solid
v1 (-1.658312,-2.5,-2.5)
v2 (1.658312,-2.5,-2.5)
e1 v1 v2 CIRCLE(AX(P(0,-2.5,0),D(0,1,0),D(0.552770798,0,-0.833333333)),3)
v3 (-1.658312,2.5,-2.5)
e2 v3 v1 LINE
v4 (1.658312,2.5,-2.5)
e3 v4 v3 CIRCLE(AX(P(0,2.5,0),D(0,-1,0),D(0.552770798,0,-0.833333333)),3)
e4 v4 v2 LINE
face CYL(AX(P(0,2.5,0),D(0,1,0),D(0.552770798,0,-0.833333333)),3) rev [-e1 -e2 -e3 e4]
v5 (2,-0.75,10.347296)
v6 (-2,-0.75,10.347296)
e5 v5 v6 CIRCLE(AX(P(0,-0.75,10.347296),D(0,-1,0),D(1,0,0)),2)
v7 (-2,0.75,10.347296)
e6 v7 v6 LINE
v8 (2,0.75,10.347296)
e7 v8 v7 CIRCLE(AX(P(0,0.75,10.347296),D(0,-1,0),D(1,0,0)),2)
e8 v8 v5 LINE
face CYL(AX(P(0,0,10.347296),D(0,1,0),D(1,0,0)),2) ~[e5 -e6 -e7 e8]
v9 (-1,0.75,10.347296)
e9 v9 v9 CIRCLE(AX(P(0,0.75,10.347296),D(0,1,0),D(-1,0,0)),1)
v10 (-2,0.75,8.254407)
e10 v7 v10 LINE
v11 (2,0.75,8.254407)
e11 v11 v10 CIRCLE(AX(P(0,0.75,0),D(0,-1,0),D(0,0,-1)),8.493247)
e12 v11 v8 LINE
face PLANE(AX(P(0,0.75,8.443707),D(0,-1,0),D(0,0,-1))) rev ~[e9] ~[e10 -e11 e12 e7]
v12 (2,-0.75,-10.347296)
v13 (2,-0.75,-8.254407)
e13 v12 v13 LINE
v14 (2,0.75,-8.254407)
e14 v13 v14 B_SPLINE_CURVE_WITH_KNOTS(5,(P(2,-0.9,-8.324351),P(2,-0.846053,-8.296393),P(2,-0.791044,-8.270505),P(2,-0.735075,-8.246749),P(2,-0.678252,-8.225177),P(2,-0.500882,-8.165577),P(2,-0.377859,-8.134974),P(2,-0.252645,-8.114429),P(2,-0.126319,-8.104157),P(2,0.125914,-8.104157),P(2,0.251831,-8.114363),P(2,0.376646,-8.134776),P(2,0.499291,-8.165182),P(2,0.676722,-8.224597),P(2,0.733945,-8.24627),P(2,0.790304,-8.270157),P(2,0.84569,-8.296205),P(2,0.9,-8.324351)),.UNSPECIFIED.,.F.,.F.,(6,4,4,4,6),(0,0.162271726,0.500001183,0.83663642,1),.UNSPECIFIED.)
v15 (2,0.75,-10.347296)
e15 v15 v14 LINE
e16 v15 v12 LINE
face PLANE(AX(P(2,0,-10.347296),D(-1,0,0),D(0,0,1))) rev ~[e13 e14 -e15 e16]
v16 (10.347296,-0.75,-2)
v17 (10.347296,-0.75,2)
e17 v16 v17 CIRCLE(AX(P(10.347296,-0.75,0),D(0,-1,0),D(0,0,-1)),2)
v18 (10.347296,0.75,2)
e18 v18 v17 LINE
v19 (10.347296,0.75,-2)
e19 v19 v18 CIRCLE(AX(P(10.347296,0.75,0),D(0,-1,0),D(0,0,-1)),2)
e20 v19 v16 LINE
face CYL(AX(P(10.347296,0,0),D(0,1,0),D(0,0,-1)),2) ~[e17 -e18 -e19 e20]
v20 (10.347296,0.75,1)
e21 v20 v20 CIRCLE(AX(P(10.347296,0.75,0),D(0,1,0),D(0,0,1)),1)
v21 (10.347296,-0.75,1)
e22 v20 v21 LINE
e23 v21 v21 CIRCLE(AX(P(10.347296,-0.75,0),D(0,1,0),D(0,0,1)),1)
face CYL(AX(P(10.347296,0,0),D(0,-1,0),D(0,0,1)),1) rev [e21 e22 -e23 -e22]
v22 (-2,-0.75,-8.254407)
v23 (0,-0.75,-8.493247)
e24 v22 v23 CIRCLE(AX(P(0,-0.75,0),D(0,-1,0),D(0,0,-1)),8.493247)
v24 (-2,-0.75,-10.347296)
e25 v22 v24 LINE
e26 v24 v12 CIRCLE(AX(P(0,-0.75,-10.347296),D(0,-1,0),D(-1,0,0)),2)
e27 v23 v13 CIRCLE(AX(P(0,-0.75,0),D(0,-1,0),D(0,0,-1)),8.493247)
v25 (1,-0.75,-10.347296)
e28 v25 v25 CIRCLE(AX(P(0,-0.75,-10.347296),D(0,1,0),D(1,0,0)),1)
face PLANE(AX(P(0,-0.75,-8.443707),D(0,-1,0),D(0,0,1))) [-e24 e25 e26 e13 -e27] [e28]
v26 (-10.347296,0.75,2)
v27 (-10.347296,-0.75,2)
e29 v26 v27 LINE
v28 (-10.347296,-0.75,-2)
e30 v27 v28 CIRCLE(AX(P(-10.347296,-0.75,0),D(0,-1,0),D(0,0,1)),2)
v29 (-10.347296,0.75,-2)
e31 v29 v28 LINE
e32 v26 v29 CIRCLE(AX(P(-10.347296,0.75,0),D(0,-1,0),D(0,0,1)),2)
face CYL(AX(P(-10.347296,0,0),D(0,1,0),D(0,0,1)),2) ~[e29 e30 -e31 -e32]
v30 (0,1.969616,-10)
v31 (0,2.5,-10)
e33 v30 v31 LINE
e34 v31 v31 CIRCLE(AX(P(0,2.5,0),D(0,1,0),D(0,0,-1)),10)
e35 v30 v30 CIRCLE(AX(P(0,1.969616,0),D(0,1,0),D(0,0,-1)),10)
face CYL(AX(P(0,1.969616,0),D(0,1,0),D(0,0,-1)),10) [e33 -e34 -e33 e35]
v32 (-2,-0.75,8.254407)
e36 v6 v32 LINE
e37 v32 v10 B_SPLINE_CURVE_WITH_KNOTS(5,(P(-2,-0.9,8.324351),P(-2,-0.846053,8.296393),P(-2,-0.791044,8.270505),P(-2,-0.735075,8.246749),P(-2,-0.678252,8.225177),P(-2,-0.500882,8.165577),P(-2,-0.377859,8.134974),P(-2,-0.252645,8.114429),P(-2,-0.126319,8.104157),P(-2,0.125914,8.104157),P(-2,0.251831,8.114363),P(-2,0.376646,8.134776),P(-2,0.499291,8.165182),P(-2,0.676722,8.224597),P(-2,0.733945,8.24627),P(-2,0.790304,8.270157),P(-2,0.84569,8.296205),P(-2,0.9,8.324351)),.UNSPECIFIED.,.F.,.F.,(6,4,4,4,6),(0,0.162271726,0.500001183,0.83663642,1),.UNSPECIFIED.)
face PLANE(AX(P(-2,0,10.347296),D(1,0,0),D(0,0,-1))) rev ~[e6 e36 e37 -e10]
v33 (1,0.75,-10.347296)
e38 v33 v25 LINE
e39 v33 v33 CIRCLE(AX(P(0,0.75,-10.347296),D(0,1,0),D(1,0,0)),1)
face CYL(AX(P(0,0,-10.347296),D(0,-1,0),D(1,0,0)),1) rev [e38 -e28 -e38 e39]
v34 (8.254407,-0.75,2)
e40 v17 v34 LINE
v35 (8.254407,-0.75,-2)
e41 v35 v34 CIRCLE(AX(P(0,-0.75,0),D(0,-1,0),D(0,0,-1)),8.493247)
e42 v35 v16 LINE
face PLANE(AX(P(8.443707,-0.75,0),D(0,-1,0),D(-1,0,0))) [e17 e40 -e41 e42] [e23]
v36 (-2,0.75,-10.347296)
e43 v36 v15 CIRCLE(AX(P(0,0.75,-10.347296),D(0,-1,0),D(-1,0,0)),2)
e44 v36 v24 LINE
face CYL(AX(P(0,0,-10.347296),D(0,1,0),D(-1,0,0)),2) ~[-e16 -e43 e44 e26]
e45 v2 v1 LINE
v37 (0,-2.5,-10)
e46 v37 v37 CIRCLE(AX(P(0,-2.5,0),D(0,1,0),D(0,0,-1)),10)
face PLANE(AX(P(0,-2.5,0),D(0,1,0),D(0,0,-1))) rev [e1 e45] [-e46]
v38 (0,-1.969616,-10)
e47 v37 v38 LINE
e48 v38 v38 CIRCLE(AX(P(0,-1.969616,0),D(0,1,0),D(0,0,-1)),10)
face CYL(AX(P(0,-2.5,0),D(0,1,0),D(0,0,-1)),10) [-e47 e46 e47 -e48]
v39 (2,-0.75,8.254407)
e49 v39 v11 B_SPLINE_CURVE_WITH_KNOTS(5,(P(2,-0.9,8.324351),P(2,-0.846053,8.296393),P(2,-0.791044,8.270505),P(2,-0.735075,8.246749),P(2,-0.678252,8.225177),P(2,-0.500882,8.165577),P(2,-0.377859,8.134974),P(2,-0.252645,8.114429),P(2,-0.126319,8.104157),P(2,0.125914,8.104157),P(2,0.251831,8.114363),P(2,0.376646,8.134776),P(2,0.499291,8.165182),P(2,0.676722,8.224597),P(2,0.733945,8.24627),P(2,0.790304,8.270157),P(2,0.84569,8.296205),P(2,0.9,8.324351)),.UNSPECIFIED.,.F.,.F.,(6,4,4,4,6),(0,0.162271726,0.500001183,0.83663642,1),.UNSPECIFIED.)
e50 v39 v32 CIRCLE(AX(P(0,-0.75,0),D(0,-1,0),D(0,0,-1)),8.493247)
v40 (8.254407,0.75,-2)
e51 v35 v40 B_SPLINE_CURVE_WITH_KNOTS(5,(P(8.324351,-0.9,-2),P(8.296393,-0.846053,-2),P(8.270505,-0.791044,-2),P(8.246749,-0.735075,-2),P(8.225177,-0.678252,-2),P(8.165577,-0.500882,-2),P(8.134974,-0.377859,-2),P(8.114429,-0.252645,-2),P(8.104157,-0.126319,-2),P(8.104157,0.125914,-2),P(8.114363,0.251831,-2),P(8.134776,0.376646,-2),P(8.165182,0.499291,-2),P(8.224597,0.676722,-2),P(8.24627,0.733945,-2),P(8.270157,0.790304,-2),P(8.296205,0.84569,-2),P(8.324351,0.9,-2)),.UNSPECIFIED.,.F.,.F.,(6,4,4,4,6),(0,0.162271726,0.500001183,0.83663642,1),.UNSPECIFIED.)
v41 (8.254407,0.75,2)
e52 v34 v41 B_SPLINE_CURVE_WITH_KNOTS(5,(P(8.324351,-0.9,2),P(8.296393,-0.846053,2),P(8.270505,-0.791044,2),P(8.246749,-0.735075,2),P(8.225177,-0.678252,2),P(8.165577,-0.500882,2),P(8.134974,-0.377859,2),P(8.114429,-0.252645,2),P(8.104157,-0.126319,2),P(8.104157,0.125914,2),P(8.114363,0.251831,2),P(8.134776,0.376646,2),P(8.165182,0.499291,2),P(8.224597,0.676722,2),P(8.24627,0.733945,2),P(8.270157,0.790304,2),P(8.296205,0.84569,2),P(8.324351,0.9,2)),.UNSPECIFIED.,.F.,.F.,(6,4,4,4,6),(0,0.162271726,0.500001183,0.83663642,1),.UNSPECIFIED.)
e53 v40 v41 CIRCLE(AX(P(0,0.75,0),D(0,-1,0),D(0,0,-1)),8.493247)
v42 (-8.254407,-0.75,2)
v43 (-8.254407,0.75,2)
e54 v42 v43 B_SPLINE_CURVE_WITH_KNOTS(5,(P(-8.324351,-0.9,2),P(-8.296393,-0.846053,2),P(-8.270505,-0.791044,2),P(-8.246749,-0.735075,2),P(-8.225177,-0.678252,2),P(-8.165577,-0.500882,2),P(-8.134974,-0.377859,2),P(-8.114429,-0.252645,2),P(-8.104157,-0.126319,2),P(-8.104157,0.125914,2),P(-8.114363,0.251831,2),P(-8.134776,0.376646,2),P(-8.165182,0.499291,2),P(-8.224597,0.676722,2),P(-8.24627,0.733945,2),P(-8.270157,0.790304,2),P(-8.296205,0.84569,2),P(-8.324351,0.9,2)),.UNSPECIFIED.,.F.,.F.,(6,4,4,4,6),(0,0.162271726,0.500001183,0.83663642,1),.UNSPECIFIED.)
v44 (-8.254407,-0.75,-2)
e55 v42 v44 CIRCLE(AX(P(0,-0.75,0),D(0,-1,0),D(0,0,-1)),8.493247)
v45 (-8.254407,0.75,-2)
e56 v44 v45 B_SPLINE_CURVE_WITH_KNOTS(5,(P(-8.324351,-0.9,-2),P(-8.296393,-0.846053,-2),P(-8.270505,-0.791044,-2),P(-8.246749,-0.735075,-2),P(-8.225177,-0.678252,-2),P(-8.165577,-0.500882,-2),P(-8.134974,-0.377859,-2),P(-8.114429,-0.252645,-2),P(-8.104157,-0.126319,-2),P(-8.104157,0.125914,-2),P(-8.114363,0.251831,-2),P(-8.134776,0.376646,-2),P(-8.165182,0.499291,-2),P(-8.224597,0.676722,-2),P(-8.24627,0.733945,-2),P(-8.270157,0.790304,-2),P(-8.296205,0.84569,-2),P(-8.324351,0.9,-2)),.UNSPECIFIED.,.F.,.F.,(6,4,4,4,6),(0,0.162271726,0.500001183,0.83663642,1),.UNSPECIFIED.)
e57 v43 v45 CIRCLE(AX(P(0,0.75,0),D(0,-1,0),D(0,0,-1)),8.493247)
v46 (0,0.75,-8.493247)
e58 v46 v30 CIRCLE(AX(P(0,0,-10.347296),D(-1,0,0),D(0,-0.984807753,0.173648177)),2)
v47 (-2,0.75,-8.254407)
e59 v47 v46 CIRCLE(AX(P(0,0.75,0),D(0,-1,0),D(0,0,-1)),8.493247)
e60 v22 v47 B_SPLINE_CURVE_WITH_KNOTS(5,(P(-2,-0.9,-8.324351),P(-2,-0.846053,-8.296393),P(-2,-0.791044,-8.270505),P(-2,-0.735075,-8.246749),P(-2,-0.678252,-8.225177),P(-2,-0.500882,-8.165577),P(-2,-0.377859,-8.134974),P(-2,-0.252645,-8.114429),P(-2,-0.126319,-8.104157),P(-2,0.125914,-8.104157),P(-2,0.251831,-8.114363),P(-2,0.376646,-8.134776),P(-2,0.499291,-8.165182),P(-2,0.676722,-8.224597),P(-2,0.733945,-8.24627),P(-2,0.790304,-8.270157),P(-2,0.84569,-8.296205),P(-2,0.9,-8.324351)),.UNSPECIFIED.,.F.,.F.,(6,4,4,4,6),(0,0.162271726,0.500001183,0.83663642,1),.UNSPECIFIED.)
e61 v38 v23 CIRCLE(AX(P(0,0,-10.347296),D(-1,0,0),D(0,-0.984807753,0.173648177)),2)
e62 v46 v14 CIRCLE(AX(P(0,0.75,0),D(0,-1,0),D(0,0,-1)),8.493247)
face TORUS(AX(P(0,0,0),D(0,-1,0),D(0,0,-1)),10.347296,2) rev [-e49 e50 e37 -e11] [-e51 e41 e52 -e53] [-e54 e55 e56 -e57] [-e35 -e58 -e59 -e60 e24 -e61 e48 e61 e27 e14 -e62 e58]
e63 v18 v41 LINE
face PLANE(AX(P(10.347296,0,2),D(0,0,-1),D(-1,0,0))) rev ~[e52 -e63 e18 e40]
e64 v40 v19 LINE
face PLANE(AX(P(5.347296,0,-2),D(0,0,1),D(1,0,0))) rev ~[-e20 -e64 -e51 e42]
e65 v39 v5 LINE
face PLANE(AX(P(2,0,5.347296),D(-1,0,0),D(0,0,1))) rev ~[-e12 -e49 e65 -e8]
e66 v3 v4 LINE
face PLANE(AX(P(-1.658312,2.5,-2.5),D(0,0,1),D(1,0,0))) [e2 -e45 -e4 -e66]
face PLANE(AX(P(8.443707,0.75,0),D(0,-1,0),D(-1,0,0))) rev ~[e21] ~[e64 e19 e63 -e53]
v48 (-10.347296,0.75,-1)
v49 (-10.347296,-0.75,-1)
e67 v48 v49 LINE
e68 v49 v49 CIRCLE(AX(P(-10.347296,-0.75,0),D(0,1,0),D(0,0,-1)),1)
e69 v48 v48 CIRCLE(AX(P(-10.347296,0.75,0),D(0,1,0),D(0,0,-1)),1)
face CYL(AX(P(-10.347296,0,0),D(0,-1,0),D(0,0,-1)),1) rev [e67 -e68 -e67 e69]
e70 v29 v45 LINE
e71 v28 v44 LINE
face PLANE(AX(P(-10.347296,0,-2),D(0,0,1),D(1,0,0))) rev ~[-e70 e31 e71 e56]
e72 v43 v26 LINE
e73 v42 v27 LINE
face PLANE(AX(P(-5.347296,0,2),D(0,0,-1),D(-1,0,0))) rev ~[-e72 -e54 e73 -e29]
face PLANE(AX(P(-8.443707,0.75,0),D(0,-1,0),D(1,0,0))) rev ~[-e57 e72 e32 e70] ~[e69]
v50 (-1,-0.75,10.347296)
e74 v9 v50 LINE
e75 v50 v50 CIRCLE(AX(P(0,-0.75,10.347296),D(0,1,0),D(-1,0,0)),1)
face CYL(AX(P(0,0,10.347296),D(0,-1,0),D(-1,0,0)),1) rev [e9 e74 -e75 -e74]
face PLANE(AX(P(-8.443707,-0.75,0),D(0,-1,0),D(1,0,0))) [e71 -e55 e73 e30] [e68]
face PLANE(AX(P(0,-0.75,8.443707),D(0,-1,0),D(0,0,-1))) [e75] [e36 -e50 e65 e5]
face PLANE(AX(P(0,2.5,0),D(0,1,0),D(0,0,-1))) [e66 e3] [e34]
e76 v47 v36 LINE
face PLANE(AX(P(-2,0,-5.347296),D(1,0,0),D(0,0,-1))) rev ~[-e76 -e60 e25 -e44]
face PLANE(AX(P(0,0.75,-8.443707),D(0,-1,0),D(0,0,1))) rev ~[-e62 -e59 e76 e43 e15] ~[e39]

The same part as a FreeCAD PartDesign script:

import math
import FreeCAD as App
import Part
import Sketcher

V = App.Vector

doc = App.newDocument("Part")
params = doc.addObject("Spreadsheet::Sheet", "Params")
for row, (alias, value) in enumerate([
    ("sketch1_radius", "2 mm"),
    ("sketch1_width", "10 mm"),
    ("sketch1_height", "5 mm"),
    ("revolution_angle", "360 deg"),
    ("sketch2_radius", "3 mm"),
    ("sketch3_diameter", "2 mm"),
    ("sketch3_radius", "2 mm"),
    ("sketch3_width", "5 mm"),
    ("pad1_length", "1.5 mm"),
], start=1):
    params.set(f"A{row}", alias)
    params.set(f"B{row}", "=" + value)
    params.setAlias(f"B{row}", alias)

body = doc.addObject("PartDesign::Body", "Body")

# Sketch on XY plane
sketch1 = body.newObject("Sketcher::SketchObject", "Sketch")
sketch1.AttachmentSupport = (doc.getObject("XY_Plane"), [""])
sketch1.MapMode = "FlatFace"
sketch1.addGeometry([
    Part.LineSegment(V(0, 2.5, 0), V(0, -2.5, 0)),  # 0
    Part.LineSegment(V(0, -2.5, 0), V(10, -2.5, 0)),  # 1
    Part.LineSegment(V(10, -2.5, 0), V(10, -1.969616, 0)),  # 2
    Part.ArcOfCircle(Part.Circle(V(10.347296, 0, 0), V(0, 0, 1), 2), math.radians(100), math.radians(260)),  # 3
    Part.LineSegment(V(10, 1.969616, 0), V(10, 2.5, 0)),  # 4
    Part.LineSegment(V(10, 2.5, 0), V(0, 2.5, 0)),  # 5
], False)
sketch1.addConstraint([
    Sketcher.Constraint("Coincident", 0, 2, 1, 1),
    Sketcher.Constraint("Coincident", 1, 2, 2, 1),
    Sketcher.Constraint("Coincident", 2, 2, 3, 2),
    Sketcher.Constraint("Coincident", 3, 1, 4, 1),
    Sketcher.Constraint("Coincident", 4, 2, 5, 1),
    Sketcher.Constraint("Coincident", 5, 2, 0, 1),
    Sketcher.Constraint("Vertical", 0),
    Sketcher.Constraint("Horizontal", 1),
    Sketcher.Constraint("Vertical", 2),
    Sketcher.Constraint("Vertical", 4),
    Sketcher.Constraint("Horizontal", 5),
    Sketcher.Constraint("Symmetric", 0, 2, 5, 2, -1, 1),
    Sketcher.Constraint("Symmetric", 2, 2, 3, 1, -1),
    Sketcher.Constraint("Radius", 3, 2.0),
    Sketcher.Constraint("DistanceX", 1, 1, 1, 2, 10.0),
    Sketcher.Constraint("DistanceY", 0, 2, 0, 1, 5.0),
    Sketcher.Constraint("DistanceY", 2, 1, 2, 2, 0.530384),
])
sketch1.setExpression("Constraints[13]", "Params.sketch1_radius")
sketch1.setExpression("Constraints[14]", "Params.sketch1_width")
sketch1.setExpression("Constraints[15]", "Params.sketch1_height")
revolution = body.newObject("PartDesign::Revolution", "Revolution")
revolution.Profile = sketch1
revolution.ReferenceAxis = (sketch1, ["V_Axis"])
revolution.setExpression("Angle", "Params.revolution_angle")

# Sketch on XZ plane
sketch2 = body.newObject("Sketcher::SketchObject", "Sketch001")
sketch2.AttachmentSupport = (doc.getObject("XZ_Plane"), [""])
sketch2.MapMode = "FlatFace"
sketch2.AttachmentOffset = App.Placement(V(0, 0, -2.5), App.Rotation())
sketch2.addGeometry([
    Part.LineSegment(V(1.658312, -2.5, 0), V(-1.658312, -2.5, 0)),
    Part.ArcOfCircle(Part.Circle(V(0, 0, 0), V(0, 0, 1), 3), math.radians(-56.44269), math.radians(236.44269)),
], False)
sketch2.addConstraint([
    Sketcher.Constraint("Coincident", 0, 1, 1, 1),
    Sketcher.Constraint("Coincident", 1, 2, 0, 2),
    Sketcher.Constraint("Horizontal", 0),
    Sketcher.Constraint("Coincident", 1, 3, -1, 1),
    Sketcher.Constraint("Radius", 1, 3.0),
    Sketcher.Constraint("DistanceY", 0, 1, -1, 1, 2.5),
])
sketch2.setExpression("Constraints[4]", "Params.sketch2_radius")
pocket1 = body.newObject("PartDesign::Pocket", "Pocket")
pocket1.Profile = sketch2
pocket1.Type = "ThroughAll"
pocket1.Reversed = True

# Sketch on XZ plane
sketch3 = body.newObject("Sketcher::SketchObject", "Sketch002")
sketch3.AttachmentSupport = (doc.getObject("XZ_Plane"), [""])
sketch3.MapMode = "FlatFace"
sketch3.addGeometry([
    Part.LineSegment(V(10.347296, -2, 0), V(5.347296, -2, 0)),  # 0
    Part.LineSegment(V(5.347296, -2, 0), V(5.347296, 2, 0)),  # 1
    Part.LineSegment(V(5.347296, 2, 0), V(10.347296, 2, 0)),  # 2
    Part.ArcOfCircle(Part.Circle(V(10.347296, 0, 0), V(0, 0, 1), 2), math.radians(-90), math.radians(90)),  # 3
    Part.Circle(V(10.347296, 0, 0), V(0, 0, 1), 1),  # 4
], False)
sketch3.addConstraint([
    Sketcher.Constraint("Coincident", 0, 2, 1, 1),
    Sketcher.Constraint("Coincident", 1, 2, 2, 1),
    Sketcher.Constraint("Tangent", 2, 2, 3, 2),
    Sketcher.Constraint("Tangent", 3, 1, 0, 1),
    Sketcher.Constraint("Horizontal", 0),
    Sketcher.Constraint("Vertical", 1),
    Sketcher.Constraint("Horizontal", 2),
    Sketcher.Constraint("Coincident", 4, 3, 3, 3),
    Sketcher.Constraint("PointOnObject", 3, 3, -1),
    Sketcher.Constraint("Diameter", 4, 2.0),
    Sketcher.Constraint("Radius", 3, 2.0),
    Sketcher.Constraint("DistanceX", 0, 2, 0, 1, 5.0),
    Sketcher.Constraint("DistanceX", -1, 1, 3, 3, 10.347296),
])
sketch3.setExpression("Constraints[9]", "Params.sketch3_diameter")
sketch3.setExpression("Constraints[10]", "Params.sketch3_radius")
sketch3.setExpression("Constraints[11]", "Params.sketch3_width")
pad1 = body.newObject("PartDesign::Pad", "Pad")
pad1.Profile = sketch3
pad1.setExpression("Length", "Params.pad1_length")
pad1.Midplane = True
doc.recompute()

polarpattern = body.newObject("PartDesign::PolarPattern", "PolarPattern")
polarpattern.Originals = [pad1]
polarpattern.Axis = (doc.getObject("Y_Axis"), [""])
polarpattern.Angle = 360
polarpattern.Occurrences = 4
body.Tip = polarpattern

doc.recompute()
